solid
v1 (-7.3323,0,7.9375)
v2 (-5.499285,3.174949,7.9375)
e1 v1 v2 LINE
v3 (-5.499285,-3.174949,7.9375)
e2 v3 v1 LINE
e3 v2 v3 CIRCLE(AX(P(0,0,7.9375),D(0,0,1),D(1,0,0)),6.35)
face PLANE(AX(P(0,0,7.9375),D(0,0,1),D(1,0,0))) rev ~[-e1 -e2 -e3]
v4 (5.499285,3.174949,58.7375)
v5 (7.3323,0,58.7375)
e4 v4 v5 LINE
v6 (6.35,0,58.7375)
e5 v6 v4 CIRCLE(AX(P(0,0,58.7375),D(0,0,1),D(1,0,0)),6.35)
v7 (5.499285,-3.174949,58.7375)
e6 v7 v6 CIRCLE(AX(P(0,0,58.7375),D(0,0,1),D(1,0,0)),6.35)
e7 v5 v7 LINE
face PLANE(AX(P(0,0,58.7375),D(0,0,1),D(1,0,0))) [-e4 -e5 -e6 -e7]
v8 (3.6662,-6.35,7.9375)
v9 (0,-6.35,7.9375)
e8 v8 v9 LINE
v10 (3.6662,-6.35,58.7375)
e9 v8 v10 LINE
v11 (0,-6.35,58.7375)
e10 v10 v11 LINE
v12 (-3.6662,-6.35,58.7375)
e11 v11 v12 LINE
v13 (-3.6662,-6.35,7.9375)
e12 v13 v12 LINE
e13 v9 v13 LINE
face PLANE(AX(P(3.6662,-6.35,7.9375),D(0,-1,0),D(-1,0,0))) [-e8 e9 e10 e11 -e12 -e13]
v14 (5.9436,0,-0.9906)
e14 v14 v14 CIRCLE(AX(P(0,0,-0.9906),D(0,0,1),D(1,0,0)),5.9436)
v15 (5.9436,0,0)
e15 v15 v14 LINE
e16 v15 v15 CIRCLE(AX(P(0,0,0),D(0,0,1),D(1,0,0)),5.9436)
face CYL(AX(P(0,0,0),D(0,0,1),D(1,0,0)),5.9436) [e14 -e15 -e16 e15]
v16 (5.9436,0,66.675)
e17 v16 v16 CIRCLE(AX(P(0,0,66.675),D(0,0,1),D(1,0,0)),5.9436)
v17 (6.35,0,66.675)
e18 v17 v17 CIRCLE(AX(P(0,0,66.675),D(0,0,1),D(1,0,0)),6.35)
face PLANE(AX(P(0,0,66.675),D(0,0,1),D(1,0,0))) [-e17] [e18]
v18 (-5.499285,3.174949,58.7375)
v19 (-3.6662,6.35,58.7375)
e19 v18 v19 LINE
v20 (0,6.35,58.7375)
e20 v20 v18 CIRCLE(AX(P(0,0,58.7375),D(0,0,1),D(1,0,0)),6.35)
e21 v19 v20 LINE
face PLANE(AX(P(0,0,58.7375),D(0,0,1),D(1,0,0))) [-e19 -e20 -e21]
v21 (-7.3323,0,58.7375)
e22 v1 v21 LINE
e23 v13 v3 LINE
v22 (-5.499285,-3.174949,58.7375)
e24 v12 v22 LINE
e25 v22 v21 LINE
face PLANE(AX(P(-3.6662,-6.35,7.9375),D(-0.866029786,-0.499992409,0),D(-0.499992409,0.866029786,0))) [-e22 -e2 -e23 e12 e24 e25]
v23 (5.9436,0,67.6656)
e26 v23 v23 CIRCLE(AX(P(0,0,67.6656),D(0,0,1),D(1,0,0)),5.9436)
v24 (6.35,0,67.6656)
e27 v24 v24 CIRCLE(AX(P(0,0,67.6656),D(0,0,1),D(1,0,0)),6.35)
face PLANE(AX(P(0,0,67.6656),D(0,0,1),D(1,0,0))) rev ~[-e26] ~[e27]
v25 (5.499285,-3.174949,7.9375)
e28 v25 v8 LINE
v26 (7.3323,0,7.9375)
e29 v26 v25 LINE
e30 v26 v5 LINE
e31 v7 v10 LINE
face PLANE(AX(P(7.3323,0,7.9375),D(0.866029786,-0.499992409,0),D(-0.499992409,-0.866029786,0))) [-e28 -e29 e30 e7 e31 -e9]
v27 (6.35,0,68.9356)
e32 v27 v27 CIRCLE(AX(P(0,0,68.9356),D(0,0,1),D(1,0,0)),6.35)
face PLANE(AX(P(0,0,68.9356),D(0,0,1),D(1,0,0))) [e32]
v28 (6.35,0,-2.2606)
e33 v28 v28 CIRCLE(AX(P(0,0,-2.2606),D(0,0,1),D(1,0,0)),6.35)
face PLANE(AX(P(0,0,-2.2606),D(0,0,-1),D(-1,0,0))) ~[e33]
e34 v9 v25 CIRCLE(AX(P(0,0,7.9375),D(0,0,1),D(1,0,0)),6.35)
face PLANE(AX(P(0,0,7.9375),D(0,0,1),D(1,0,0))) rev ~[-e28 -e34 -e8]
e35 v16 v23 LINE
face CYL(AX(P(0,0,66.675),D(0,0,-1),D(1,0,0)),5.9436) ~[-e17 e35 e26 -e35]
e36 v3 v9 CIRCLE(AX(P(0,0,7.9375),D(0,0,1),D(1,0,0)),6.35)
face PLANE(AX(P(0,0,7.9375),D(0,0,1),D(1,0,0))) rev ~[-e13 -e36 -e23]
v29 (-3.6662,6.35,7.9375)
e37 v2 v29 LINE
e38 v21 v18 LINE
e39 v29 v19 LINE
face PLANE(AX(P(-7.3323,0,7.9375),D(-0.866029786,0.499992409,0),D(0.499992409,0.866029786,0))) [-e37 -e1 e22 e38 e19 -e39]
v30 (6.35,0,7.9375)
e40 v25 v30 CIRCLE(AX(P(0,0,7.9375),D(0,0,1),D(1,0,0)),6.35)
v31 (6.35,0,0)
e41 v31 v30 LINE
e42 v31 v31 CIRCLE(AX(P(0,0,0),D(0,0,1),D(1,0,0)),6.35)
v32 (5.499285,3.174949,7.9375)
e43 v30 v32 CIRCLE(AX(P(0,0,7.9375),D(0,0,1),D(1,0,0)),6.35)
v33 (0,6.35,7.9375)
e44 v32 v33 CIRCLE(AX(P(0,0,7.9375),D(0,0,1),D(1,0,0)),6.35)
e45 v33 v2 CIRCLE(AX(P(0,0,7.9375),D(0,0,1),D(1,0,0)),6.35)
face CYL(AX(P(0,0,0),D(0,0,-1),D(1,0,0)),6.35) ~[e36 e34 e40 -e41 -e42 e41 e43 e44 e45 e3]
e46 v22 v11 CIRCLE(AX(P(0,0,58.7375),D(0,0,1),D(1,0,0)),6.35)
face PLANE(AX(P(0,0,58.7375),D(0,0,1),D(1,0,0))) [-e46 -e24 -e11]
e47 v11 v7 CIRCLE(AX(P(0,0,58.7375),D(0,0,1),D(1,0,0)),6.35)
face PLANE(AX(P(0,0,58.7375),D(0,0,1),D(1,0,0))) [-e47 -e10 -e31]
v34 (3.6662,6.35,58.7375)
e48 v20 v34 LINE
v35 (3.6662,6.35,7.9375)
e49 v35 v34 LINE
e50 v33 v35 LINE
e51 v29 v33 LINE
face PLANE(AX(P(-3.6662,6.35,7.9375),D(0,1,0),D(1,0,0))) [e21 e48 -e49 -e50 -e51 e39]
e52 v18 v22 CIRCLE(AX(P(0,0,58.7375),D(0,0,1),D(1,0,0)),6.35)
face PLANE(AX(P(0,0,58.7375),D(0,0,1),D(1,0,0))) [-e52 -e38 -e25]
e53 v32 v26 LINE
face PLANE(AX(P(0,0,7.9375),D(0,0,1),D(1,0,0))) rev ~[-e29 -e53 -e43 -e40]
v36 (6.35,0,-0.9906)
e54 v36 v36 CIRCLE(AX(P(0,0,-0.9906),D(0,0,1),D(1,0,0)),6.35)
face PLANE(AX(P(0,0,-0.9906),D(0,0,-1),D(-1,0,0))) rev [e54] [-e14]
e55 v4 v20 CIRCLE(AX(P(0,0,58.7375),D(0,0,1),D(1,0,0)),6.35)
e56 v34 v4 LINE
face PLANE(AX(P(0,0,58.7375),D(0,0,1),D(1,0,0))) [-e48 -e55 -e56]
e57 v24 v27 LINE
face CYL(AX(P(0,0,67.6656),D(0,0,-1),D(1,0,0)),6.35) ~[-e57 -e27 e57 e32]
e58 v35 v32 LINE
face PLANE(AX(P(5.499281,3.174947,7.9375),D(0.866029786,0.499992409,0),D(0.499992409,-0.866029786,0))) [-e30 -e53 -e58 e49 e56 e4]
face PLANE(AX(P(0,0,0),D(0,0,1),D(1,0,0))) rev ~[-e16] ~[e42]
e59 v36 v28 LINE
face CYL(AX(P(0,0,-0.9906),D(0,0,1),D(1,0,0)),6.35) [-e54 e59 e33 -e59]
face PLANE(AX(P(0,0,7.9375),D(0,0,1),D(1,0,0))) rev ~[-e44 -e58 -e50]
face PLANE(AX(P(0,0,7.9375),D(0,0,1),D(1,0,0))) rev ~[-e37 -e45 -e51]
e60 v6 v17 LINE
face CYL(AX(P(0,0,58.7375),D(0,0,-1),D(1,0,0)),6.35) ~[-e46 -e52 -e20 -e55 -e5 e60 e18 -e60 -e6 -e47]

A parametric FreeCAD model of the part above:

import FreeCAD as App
import Part
import Sketcher
from FreeCAD import Vector
Q = App.Units.Quantity


def add_polygon(sketch, points):
    """Adds a closed chain of lines whose ends are joined by coincident constraints."""
    first, n = sketch.GeometryCount, len(points)
    for a, b in zip(points, points[1:] + points[:1]):
        sketch.addGeometry(Part.LineSegment(App.Vector(*a, 0), App.Vector(*b, 0)), False)
    for i in range(n):
        sketch.addConstraint(Sketcher.Constraint("Coincident", first + i, 2, first + (i + 1) % n, 1))

doc = App.newDocument("Part")
body = doc.addObject("PartDesign::Body", "Body")

# Sketch on XY plane
sketch1 = body.newObject("Sketcher::SketchObject", "Sketch")
sketch1.AttachmentSupport = (doc.getObject("XY_Plane"), [""])
sketch1.MapMode = "FlatFace"
sketch1.addGeometry(Part.Circle(Vector(0, 0, 0), Vector(0, 0, 1), 6), False)
sketch1.addConstraint(Sketcher.Constraint("Coincident", 0, 3, -1, 1))
sketch1.addConstraint(Sketcher.Constraint("Diameter", 0, Q("0.5 in")))
pad1 = body.newObject("PartDesign::Pad", "Pad")
pad1.Profile = sketch1
pad1.Length = Q("0.3125 in")

# Sketch on XY plane
sketch2 = body.newObject("Sketcher::SketchObject", "Sketch001")
sketch2.AttachmentSupport = (doc.getObject("XY_Plane"), [""])
sketch2.MapMode = "FlatFace"
sketch2.AttachmentOffset = App.Placement(Vector(0, 0, 0.3125 * 25.4), App.Rotation())
add_polygon(sketch2, [(7, 0), (4, 6), (-4, 6), (-7, 0), (-4, -6), (4, -6)])  # lines 0-5
sketch2.addConstraint(Sketcher.Constraint("Horizontal", 1))
sketch2.addConstraint(Sketcher.Constraint("Horizontal", 4))
sketch2.addConstraint(Sketcher.Constraint("Symmetric", 0, 2, 3, 2, -1, 1))
sketch2.addConstraint(Sketcher.Constraint("Symmetric", 2, 2, 5, 2, -1, 1))
sketch2.addConstraint(Sketcher.Constraint("PointOnObject", 2, 2, -1))
sketch2.addConstraint(Sketcher.Constraint("Parallel", 2, 5))
sketch2.addConstraint(Sketcher.Constraint("Vertical", 1, 2, 3, 2))
sketch2.addConstraint(Sketcher.Constraint("DistanceY", 3, 2, 1, 2, Q("0.5 in")))
sketch2.addConstraint(Sketcher.Constraint("Angle", 0, Q("119.9995 deg")))
sketch2.addConstraint(Sketcher.Constraint("DistanceX", 2, 2, 0, 2, Q("0.433 in")))
pad2 = body.newObject("PartDesign::Pad", "Pad001")
pad2.Profile = sketch2
pad2.Length = Q("2 in")

# Sketch on XY plane
sketch3 = body.newObject("Sketcher::SketchObject", "Sketch002")
sketch3.AttachmentSupport = (doc.getObject("XY_Plane"), [""])
sketch3.MapMode = "FlatFace"
sketch3.AttachmentOffset = App.Placement(Vector(0, 0, 2.3125 * 25.4), App.Rotation())
sketch3.addGeometry(Part.Circle(Vector(0, 0, 0), Vector(0, 0, 1), 6), False)
sketch3.addConstraint(Sketcher.Constraint("Coincident", 0, 3, -1, 1))
sketch3.addConstraint(Sketcher.Constraint("Diameter", 0, Q("0.5 in")))
pad3 = body.newObject("PartDesign::Pad", "Pad002")
pad3.Profile = sketch3
pad3.Length = Q("0.3125 in")

# Sketch on XY plane
sketch4 = body.newObject("Sketcher::SketchObject", "Sketch003")
sketch4.AttachmentSupport = (doc.getObject("XY_Plane"), [""])
sketch4.MapMode = "FlatFace"
sketch4.AttachmentOffset = App.Placement(Vector(0, 0, 2.625 * 25.4), App.Rotation())
sketch4.addGeometry(Part.Circle(Vector(0, 0, 0), Vector(0, 0, 1), 6), False)
sketch4.addConstraint(Sketcher.Constraint("Coincident", 0, 3, -1, 1))
sketch4.addConstraint(Sketcher.Constraint("Diameter", 0, Q("0.468 in")))
pad4 = body.newObject("PartDesign::Pad", "Pad003")
pad4.Profile = sketch4
pad4.Length = Q("0.039 in")

# Sketch on XY plane
sketch5 = body.newObject("Sketcher::SketchObject", "Sketch004")
sketch5.AttachmentSupport = (doc.getObject("XY_Plane"), [""])
sketch5.MapMode = "FlatFace"
sketch5.AttachmentOffset = App.Placement(Vector(0, 0, 2.664 * 25.4), App.Rotation())
sketch5.addGeometry(Part.Circle(Vector(0, 0, 0), Vector(0, 0, 1), 6), False)
sketch5.addConstraint(Sketcher.Constraint("Coincident", 0, 3, -1, 1))
sketch5.addConstraint(Sketcher.Constraint("Diameter", 0, Q("0.5 in")))
pad5 = body.newObject("PartDesign::Pad", "Pad004")
pad5.Profile = sketch5
pad5.Length = Q("0.05 in")
doc.recompute()

datumplane = body.newObject("PartDesign::Plane", "DatumPlane")
datumplane.AttachmentSupport = (doc.getObject("XY_Plane"), [""])
datumplane.MapMode = "FlatFace"
datumplane.AttachmentOffset = App.Placement(Vector(0, 0, 1.3125 * 25.4), App.Rotation())
mirrored = body.newObject("PartDesign::Mirrored", "Mirrored")
mirrored.Originals = [pad4, pad5]
mirrored.MirrorPlane = (datumplane, [""])
body.Tip = mirrored

doc.recompute()
